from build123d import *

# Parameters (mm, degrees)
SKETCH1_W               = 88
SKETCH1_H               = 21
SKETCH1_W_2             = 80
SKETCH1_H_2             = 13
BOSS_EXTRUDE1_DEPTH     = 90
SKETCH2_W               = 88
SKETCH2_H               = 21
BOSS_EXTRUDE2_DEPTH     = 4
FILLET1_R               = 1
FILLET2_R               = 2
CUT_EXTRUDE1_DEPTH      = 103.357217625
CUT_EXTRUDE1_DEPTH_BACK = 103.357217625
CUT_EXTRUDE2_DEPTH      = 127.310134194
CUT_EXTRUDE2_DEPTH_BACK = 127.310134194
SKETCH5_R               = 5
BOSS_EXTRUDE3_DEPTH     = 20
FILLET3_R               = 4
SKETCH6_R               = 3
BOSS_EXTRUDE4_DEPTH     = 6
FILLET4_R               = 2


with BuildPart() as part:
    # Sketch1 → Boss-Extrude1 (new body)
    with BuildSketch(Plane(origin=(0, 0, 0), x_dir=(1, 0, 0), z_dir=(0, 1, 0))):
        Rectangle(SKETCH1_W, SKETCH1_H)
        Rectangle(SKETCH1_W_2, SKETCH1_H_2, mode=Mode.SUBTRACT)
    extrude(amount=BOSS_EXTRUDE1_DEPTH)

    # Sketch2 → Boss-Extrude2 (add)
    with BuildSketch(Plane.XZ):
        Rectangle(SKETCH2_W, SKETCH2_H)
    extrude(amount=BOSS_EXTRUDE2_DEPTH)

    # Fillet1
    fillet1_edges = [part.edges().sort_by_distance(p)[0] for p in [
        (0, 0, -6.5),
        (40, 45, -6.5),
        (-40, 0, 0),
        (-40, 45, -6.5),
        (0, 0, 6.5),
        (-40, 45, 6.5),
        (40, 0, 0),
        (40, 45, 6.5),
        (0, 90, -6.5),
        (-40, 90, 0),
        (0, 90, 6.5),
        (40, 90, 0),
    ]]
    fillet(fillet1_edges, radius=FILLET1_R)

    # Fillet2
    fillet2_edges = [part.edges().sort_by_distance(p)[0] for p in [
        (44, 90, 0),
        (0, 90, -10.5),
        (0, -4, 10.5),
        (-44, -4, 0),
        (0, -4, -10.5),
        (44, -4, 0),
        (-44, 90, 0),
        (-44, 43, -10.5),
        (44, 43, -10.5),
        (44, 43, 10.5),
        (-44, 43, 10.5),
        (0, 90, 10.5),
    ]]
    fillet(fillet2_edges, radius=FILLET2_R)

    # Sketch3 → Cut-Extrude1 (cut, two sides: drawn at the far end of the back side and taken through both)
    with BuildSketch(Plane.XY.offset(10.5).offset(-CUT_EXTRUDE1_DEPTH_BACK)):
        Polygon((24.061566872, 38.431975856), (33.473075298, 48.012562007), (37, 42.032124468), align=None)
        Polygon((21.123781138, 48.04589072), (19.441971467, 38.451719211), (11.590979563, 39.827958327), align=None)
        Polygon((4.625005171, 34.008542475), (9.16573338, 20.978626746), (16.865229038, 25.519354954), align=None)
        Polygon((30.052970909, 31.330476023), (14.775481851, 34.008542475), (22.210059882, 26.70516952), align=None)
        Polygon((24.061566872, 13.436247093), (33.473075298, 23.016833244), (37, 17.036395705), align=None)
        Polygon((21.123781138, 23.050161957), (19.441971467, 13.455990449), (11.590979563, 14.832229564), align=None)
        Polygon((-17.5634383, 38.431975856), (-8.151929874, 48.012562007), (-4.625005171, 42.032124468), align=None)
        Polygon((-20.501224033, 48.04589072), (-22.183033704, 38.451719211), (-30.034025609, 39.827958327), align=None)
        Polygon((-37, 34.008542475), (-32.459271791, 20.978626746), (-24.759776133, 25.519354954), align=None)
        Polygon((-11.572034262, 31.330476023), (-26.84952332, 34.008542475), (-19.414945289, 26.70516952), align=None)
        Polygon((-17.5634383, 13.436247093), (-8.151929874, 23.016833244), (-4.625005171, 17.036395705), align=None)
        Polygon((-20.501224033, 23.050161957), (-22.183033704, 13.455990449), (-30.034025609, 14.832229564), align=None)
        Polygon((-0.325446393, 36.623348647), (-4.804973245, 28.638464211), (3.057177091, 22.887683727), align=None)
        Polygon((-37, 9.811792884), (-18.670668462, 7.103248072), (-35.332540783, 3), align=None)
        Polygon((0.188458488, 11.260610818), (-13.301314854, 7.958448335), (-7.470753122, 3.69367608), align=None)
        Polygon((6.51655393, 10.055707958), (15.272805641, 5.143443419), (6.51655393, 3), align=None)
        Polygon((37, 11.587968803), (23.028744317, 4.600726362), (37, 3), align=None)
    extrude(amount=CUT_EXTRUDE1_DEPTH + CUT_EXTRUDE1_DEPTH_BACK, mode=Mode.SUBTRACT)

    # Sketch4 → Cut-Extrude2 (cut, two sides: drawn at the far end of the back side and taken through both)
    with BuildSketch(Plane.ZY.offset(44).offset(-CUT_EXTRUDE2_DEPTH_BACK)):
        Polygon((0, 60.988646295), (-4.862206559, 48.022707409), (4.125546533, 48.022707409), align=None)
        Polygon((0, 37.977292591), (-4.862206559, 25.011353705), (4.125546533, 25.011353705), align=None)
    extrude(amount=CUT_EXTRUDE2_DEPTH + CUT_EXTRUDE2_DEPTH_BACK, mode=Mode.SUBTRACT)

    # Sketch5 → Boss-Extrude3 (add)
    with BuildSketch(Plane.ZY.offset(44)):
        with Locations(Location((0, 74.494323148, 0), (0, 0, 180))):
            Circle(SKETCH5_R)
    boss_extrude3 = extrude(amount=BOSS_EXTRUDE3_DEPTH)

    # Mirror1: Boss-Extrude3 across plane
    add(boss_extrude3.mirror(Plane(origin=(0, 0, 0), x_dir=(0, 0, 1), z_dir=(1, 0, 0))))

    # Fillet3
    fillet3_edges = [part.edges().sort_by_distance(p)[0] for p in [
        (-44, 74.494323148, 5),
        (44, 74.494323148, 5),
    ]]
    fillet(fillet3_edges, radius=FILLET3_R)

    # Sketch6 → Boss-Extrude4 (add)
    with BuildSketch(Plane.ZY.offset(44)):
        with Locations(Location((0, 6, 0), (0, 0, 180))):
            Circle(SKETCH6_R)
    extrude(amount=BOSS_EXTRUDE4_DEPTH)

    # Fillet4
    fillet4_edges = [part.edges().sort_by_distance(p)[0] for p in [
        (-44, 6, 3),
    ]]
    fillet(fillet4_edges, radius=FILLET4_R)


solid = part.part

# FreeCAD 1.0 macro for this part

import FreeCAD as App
import Part
import Sketcher


def edges_at(feature, points):
    """Names of the edges that pass closest to the given points."""
    edges = feature.Shape.Edges
    near = lambda p: min(range(len(edges)), key=lambda i: edges[i].distToShape(Part.Vertex(*p))[0])
    return sorted({f"Edge{near(p) + 1}" for p in points})


def add_polygon(sketch, points):
    """Adds a closed chain of lines whose ends are joined by coincident constraints."""
    first, n = sketch.GeometryCount, len(points)
    for a, b in zip(points, points[1:] + points[:1]):
        sketch.addGeometry(Part.LineSegment(App.Vector(*a, 0), App.Vector(*b, 0)), False)
    for i in range(n):
        sketch.addConstraint(Sketcher.Constraint("Coincident", first + i, 2, first + (i + 1) % n, 1))

doc = App.newDocument("Part")
params = doc.addObject("Spreadsheet::Sheet", "Params")
for row, (alias, value) in enumerate([
    ("sketch1_width", "88 mm"),
    ("sketch1_width2", "80 mm"),
    ("sketch1_height", "21 mm"),
    ("sketch1_height2", "13 mm"),
    ("pad1_length", "90 mm"),
    ("sketch2_width", "88 mm"),
    ("sketch2_height", "21 mm"),
    ("pad2_length", "4 mm"),
    ("fillet_radius", "1 mm"),
    ("fillet2_radius", "2 mm"),
    ("sketch5_diameter", "10 mm"),
    ("pad3_length", "20 mm"),
    ("fillet3_radius", "4 mm"),
    ("sketch6_diameter", "6 mm"),
    ("pad4_length", "6 mm"),
    ("fillet4_radius", "2 mm"),
], start=1):
    params.set(f"A{row}", alias)
    params.set(f"B{row}", "=" + value)
    params.setAlias(f"B{row}", alias)

body = doc.addObject("PartDesign::Body", "Body")

# Sketch on XZ plane
sketch1 = doc.addObject("Sketcher::SketchObject", "Sketch")
body.addObject(sketch1)
sketch1.AttachmentSupport = (doc.XZ_Plane, [""])
sketch1.MapMode = "FlatFace"
add_polygon(sketch1, [(-44, -10), (-44, 10), (44, 10), (44, -10)])  # lines 0-3
add_polygon(sketch1, [(40, 6), (-40, 6), (-40, -6), (40, -6)])  # lines 4-7
sketch1.addConstraint(Sketcher.Constraint("Vertical", 0))
sketch1.addConstraint(Sketcher.Constraint("Horizontal", 1))
sketch1.addConstraint(Sketcher.Constraint("Vertical", 2))
sketch1.addConstraint(Sketcher.Constraint("Horizontal", 3))
sketch1.addConstraint(Sketcher.Constraint("Horizontal", 4))
sketch1.addConstraint(Sketcher.Constraint("Vertical", 5))
sketch1.addConstraint(Sketcher.Constraint("Horizontal", 6))
sketch1.addConstraint(Sketcher.Constraint("Vertical", 7))
sketch1.addConstraint(Sketcher.Constraint("Symmetric", 0, 2, 2, 2, -1, 1))
sketch1.addConstraint(Sketcher.Constraint("Symmetric", 4, 2, 6, 2, -1, 1))
sketch1.addConstraint(Sketcher.Constraint("DistanceX", 1, 1, 1, 2, 88.0))
sketch1.addConstraint(Sketcher.Constraint("DistanceX", 4, 2, 4, 1, 80.0))
sketch1.addConstraint(Sketcher.Constraint("DistanceY", 0, 1, 0, 2, 21.0))
sketch1.addConstraint(Sketcher.Constraint("DistanceY", 5, 2, 5, 1, 13.0))
sketch1.setExpression("Constraints[18]", "Params.sketch1_width")
sketch1.setExpression("Constraints[19]", "Params.sketch1_width2")
sketch1.setExpression("Constraints[20]", "Params.sketch1_height")
sketch1.setExpression("Constraints[21]", "Params.sketch1_height2")
pad1 = doc.addObject("PartDesign::Pad", "Pad")
body.addObject(pad1)
pad1.Profile = sketch1
pad1.setExpression("Length", "Params.pad1_length")
pad1.Reversed = True

# Sketch on XZ plane
sketch2 = doc.addObject("Sketcher::SketchObject", "Sketch001")
body.addObject(sketch2)
sketch2.AttachmentSupport = (doc.XZ_Plane, [""])
sketch2.MapMode = "FlatFace"
add_polygon(sketch2, [(-44, 10), (-44, -10), (44, -10), (44, 10)])  # lines 0-3
sketch2.addConstraint(Sketcher.Constraint("Vertical", 0))
sketch2.addConstraint(Sketcher.Constraint("Horizontal", 1))
sketch2.addConstraint(Sketcher.Constraint("Vertical", 2))
sketch2.addConstraint(Sketcher.Constraint("Horizontal", 3))
sketch2.addConstraint(Sketcher.Constraint("Symmetric", 0, 2, 2, 2, -1, 1))
sketch2.addConstraint(Sketcher.Constraint("DistanceX", 1, 1, 1, 2, 88.0))
sketch2.addConstraint(Sketcher.Constraint("DistanceY", 0, 2, 0, 1, 21.0))
sketch2.setExpression("Constraints[9]", "Params.sketch2_width")
sketch2.setExpression("Constraints[10]", "Params.sketch2_height")
pad2 = doc.addObject("PartDesign::Pad", "Pad001")
body.addObject(pad2)
pad2.Profile = sketch2
pad2.setExpression("Length", "Params.pad2_length")
doc.recompute()

fillet = doc.addObject("PartDesign::Fillet", "Fillet")
body.addObject(fillet)
fillet.Base = (pad2, edges_at(pad2, [
    (0, 0, -6.5),
    (40, 45, -6.5),
    (-40, 0, 0),
    (-40, 45, -6.5),
    (0, 0, 6.5),
    (-40, 45, 6.5),
    (40, 0, 0),
    (40, 45, 6.5),
    (0, 90, -6.5),
    (-40, 90, 0),
    (0, 90, 6.5),
    (40, 90, 0),
]))
fillet.setExpression("Radius", "Params.fillet_radius")
doc.recompute()

fillet2 = doc.addObject("PartDesign::Fillet", "Fillet001")
body.addObject(fillet2)
fillet2.Base = (fillet, edges_at(fillet, [
    (44, 90, 0),
    (0, 90, -10.5),
    (0, -4, 10.5),
    (-44, -4, 0),
    (0, -4, -10.5),
    (44, -4, 0),
    (-44, 90, 0),
    (-44, 43, -10.5),
    (44, 43, -10.5),
    (44, 43, 10.5),
    (-44, 43, 10.5),
    (0, 90, 10.5),
]))
fillet2.setExpression("Radius", "Params.fillet2_radius")

# Sketch on XY plane
sketch3 = doc.addObject("Sketcher::SketchObject", "Sketch002")
body.addObject(sketch3)
sketch3.AttachmentSupport = (doc.XY_Plane, [""])
sketch3.MapMode = "FlatFace"
sketch3.AttachmentOffset = App.Placement(App.Vector(0, 0, 10.5), App.Rotation())
add_polygon(sketch3, [(33, 48), (24, 38), (37, 42)])  # lines 0-2
add_polygon(sketch3, [(19, 38), (21, 48), (12, 40)])  # lines 3-5
add_polygon(sketch3, [(5, 34), (9, 21), (17, 26)])  # lines 6-8
add_polygon(sketch3, [(30, 31), (15, 34), (22, 27)])  # lines 9-11
add_polygon(sketch3, [(33, 23), (24, 13), (37, 17)])  # lines 12-14
add_polygon(sketch3, [(19, 13), (21, 23), (12, 15)])  # lines 15-17
add_polygon(sketch3, [(-8, 48), (-18, 38), (-5, 42)])  # lines 18-20
add_polygon(sketch3, [(-22, 38), (-21, 48), (-30, 40)])  # lines 21-23
add_polygon(sketch3, [(-37, 34), (-32, 21), (-25, 26)])  # lines 24-26
add_polygon(sketch3, [(-12, 31), (-27, 34), (-19, 27)])  # lines 27-29
add_polygon(sketch3, [(-8, 23), (-18, 13), (-5, 17)])  # lines 30-32
add_polygon(sketch3, [(-22, 13), (-21, 23), (-30, 15)])  # lines 33-35
add_polygon(sketch3, [(0, 37), (-5, 29), (3, 23)])  # lines 36-38
add_polygon(sketch3, [(-19, 7), (-37, 10), (-35, 3)])  # lines 39-41
add_polygon(sketch3, [(0, 11), (-13, 8), (-7, 4)])  # lines 42-44
add_polygon(sketch3, [(15, 5), (7, 10), (7, 3)])  # lines 45-47
add_polygon(sketch3, [(37, 12), (23, 5), (37, 3)])  # lines 48-50
sketch3.addConstraint(Sketcher.Constraint("Vertical", 46))
sketch3.addConstraint(Sketcher.Constraint("Vertical", 50))
sketch3.addConstraint(Sketcher.Constraint("Perpendicular", 3, 5))
sketch3.addConstraint(Sketcher.Constraint("Perpendicular", 2, 7))
sketch3.addConstraint(Sketcher.Constraint("Parallel", 5, 9))
sketch3.addConstraint(Sketcher.Constraint("Perpendicular", 0, 10))
sketch3.addConstraint(Sketcher.Constraint("Parallel", 7, 11))
sketch3.addConstraint(Sketcher.Constraint("Perpendicular", 10, 12))
sketch3.addConstraint(Sketcher.Constraint("Parallel", 1, 13))
sketch3.addConstraint(Sketcher.Constraint("Perpendicular", 11, 14))
sketch3.addConstraint(Sketcher.Constraint("Perpendicular", 9, 15))
sketch3.addConstraint(Sketcher.Constraint("Parallel", 4, 16))
sketch3.addConstraint(Sketcher.Constraint("Perpendicular", 15, 17))
sketch3.addConstraint(Sketcher.Constraint("Parallel", 12, 18))
sketch3.addConstraint(Sketcher.Constraint("Parallel", 13, 19))
sketch3.addConstraint(Sketcher.Constraint("Parallel", 14, 20))
sketch3.addConstraint(Sketcher.Constraint("Perpendicular", 17, 21))
sketch3.addConstraint(Sketcher.Constraint("Parallel", 16, 22))
sketch3.addConstraint(Sketcher.Constraint("Perpendicular", 21, 23))
sketch3.addConstraint(Sketcher.Constraint("Parallel", 6, 24))
sketch3.addConstraint(Sketcher.Constraint("Perpendicular", 20, 25))
sketch3.addConstraint(Sketcher.Constraint("Parallel", 8, 26))
sketch3.addConstraint(Sketcher.Constraint("Parallel", 23, 27))
sketch3.addConstraint(Sketcher.Constraint("Perpendicular", 18, 28))
sketch3.addConstraint(Sketcher.Constraint("Parallel", 25, 29))
sketch3.addConstraint(Sketcher.Constraint("Perpendicular", 28, 30))
sketch3.addConstraint(Sketcher.Constraint("Parallel", 19, 31))
sketch3.addConstraint(Sketcher.Constraint("Perpendicular", 29, 32))
sketch3.addConstraint(Sketcher.Constraint("Perpendicular", 27, 33))
sketch3.addConstraint(Sketcher.Constraint("Parallel", 22, 34))
sketch3.addConstraint(Sketcher.Constraint("Perpendicular", 33, 35))
sketch3.addConstraint(Sketcher.Constraint("Perpendicular", 38, 41))
sketch3.addConstraint(Sketcher.Constraint("Perpendicular", 40, 42))
sketch3.addConstraint(Sketcher.Constraint("Parallel", 37, 43))
sketch3.addConstraint(Sketcher.Constraint("Perpendicular", 36, 45))
sketch3.addConstraint(Sketcher.Constraint("Parallel", 42, 47))
sketch3.addConstraint(Sketcher.Constraint("Horizontal", 8, 2, 9, 2))
sketch3.addConstraint(Sketcher.Constraint("Horizontal", 0, 2, 18, 2))
sketch3.addConstraint(Sketcher.Constraint("Horizontal", 1, 2, 19, 2))
sketch3.addConstraint(Sketcher.Constraint("Horizontal", 3, 2, 21, 2))
sketch3.addConstraint(Sketcher.Constraint("Horizontal", 4, 2, 22, 2))
sketch3.addConstraint(Sketcher.Constraint("Horizontal", 6, 2, 24, 2))
sketch3.addConstraint(Sketcher.Constraint("Horizontal", 7, 2, 25, 2))
sketch3.addConstraint(Sketcher.Constraint("Horizontal", 26, 2, 27, 2))
sketch3.addConstraint(Sketcher.Constraint("Horizontal", 10, 2, 28, 2))
sketch3.addConstraint(Sketcher.Constraint("Horizontal", 12, 2, 30, 2))
sketch3.addConstraint(Sketcher.Constraint("Horizontal", 13, 2, 31, 2))
sketch3.addConstraint(Sketcher.Constraint("Horizontal", 15, 2, 33, 2))
sketch3.addConstraint(Sketcher.Constraint("Horizontal", 16, 2, 34, 2))
sketch3.addConstraint(Sketcher.Constraint("Horizontal", 40, 2, 46, 2))
sketch3.addConstraint(Sketcher.Constraint("Horizontal", 46, 2, 49, 2))
sketch3.addConstraint(Sketcher.Constraint("Vertical", 0, 2, 12, 2))
sketch3.addConstraint(Sketcher.Constraint("Vertical", 1, 2, 13, 2))
sketch3.addConstraint(Sketcher.Constraint("Vertical", 3, 2, 15, 2))
sketch3.addConstraint(Sketcher.Constraint("Vertical", 4, 2, 16, 2))
sketch3.addConstraint(Sketcher.Constraint("Vertical", 18, 2, 30, 2))
sketch3.addConstraint(Sketcher.Constraint("Vertical", 21, 2, 33, 2))
sketch3.addConstraint(Sketcher.Constraint("Vertical", 26, 2, 39, 2))
sketch3.addConstraint(Sketcher.Constraint("Vertical", 13, 2, 49, 2))
sketch3.addConstraint(Sketcher.Constraint("Equal", 0, 1))
sketch3.addConstraint(Sketcher.Constraint("DistanceX", -1, 1, 1, 2, 37.0))
sketch3.addConstraint(Sketcher.Constraint("DistanceX", 26, 2, -1, 1, 37.0))
sketch3.addConstraint(Sketcher.Constraint("DistanceY", -1, 1, 40, 2, 3.0))
sketch3.addConstraint(Sketcher.Constraint("DistanceX", 5, 2, 11, 2, 10.610999))
sketch3.addConstraint(Sketcher.Constraint("DistanceX", 23, 2, 29, 2, 10.610999))
sketch3.addConstraint(Sketcher.Constraint("DistanceY", 41, 2, 30, 2, 6.332999))
sketch3.addConstraint(Sketcher.Constraint("DistanceY", 50, 1, 50, 2, 8.587969))
sketch3.addConstraint(Sketcher.Constraint("DistanceX", 4, 2, 3, 2, 9.532802))
sketch3.addConstraint(Sketcher.Constraint("DistanceY", 11, 2, 0, 2, 7.1015))
sketch3.addConstraint(Sketcher.Constraint("DistanceY", 41, 2, 42, 2, 0.8552))
sketch3.addConstraint(Sketcher.Constraint("Distance", 0, 13.429971))
sketch3.addConstraint(Sketcher.Constraint("Distance", 2, 6.94297))
sketch3.addConstraint(Sketcher.Constraint("Distance", 6, 13.798439))
sketch3.addConstraint(Sketcher.Constraint("Distance", 8, 14.895952))
sketch3.addConstraint(Sketcher.Constraint("Distance", 9, 15.510439))
sketch3.addConstraint(Sketcher.Constraint("Distance", 10, 10.421718))
sketch3.addConstraint(Sketcher.Constraint("Distance", 41, 17.15968))
sketch3.addConstraint(Sketcher.Constraint("Distance", 42, 13.888062))
sketch3.addConstraint(Sketcher.Constraint("Distance", 43, 7.223831))
sketch3.addConstraint(Sketcher.Constraint("Distance", 44, 10.766709))
sketch3.addConstraint(Sketcher.Constraint("Distance", 47, 9.014782))
sketch3.addConstraint(Sketcher.Constraint("Distance", 48, 15.621061))
sketch3.addConstraint(Sketcher.Constraint("DistanceY", 46, 2, 46, 1, 7.055708))
sketch3.addConstraint(Sketcher.Constraint("DistanceX", -1, 1, 3, 2, 21.123781))
sketch3.addConstraint(Sketcher.Constraint("DistanceY", -1, 1, 3, 2, 48.045891))
sketch3.addConstraint(Sketcher.Constraint("DistanceY", -1, 1, 4, 2, 39.827958))
sketch3.addConstraint(Sketcher.Constraint("DistanceX", -1, 1, 5, 2, 19.441971))
sketch3.addConstraint(Sketcher.Constraint("DistanceX", -1, 1, 7, 2, 16.865229))
sketch3.addConstraint(Sketcher.Constraint("DistanceY", -1, 1, 10, 2, 26.70517))
sketch3.addConstraint(Sketcher.Constraint("DistanceY", -1, 1, 15, 2, 23.050162))
sketch3.addConstraint(Sketcher.Constraint("DistanceX", 18, 2, -1, 1, 17.563438))
sketch3.addConstraint(Sketcher.Constraint("DistanceX", 24, 2, -1, 1, 32.459272))
sketch3.addConstraint(Sketcher.Constraint("DistanceY", -1, 1, 38, 2, 36.623349))
sketch3.addConstraint(Sketcher.Constraint("DistanceX", 40, 2, -1, 1, 35.332541))
sketch3.addConstraint(Sketcher.Constraint("DistanceX", 41, 2, -1, 1, 18.670668))
sketch3.addConstraint(Sketcher.Constraint("DistanceX", -1, 1, 44, 2, 0.188458))
sketch3.addConstraint(Sketcher.Constraint("DistanceY", -1, 1, 44, 2, 11.260611))
sketch3.addConstraint(Sketcher.Constraint("DistanceX", 21, 2, 19, 2, 15.876219))
sketch3.addConstraint(Sketcher.Constraint("DistanceY", 32, 2, 36, 2, 5.621631))
sketch3.addConstraint(Sketcher.Constraint("DistanceX", 29, 2, 36, 2, 6.767061))
sketch3.addConstraint(Sketcher.Constraint("DistanceX", 45, 2, 6, 2, 2.649179))
sketch3.addConstraint(Sketcher.Constraint("DistanceX", 47, 2, 48, 2, 7.755939))
pocket1 = doc.addObject("PartDesign::Pocket", "Pocket")
body.addObject(pocket1)
pocket1.Profile = sketch3
pocket1.Type = "ThroughAll"
pocket1.Midplane = True

# Sketch on YZ plane
sketch4 = doc.addObject("Sketcher::SketchObject", "Sketch003")
body.addObject(sketch4)
sketch4.AttachmentSupport = (doc.YZ_Plane, [""])
sketch4.MapMode = "FlatFace"
sketch4.AttachmentOffset = App.Placement(App.Vector(0, 0, -44), App.Rotation())
add_polygon(sketch4, [(61, 0), (48, -5), (48, 4)])  # lines 0-2
add_polygon(sketch4, [(38, 0), (25, -5), (25, 4)])  # lines 3-5
sketch4.addConstraint(Sketcher.Constraint("Vertical", 1))
sketch4.addConstraint(Sketcher.Constraint("Vertical", 4))
sketch4.addConstraint(Sketcher.Constraint("PointOnObject", 2, 2, -1))
sketch4.addConstraint(Sketcher.Constraint("PointOnObject", 5, 2, -1))
sketch4.addConstraint(Sketcher.Constraint("Parallel", 0, 3))
sketch4.addConstraint(Sketcher.Constraint("Parallel", 2, 5))
sketch4.addConstraint(Sketcher.Constraint("Horizontal", 0, 2, 3, 2))
sketch4.addConstraint(Sketcher.Constraint("Distance", 0, 13.847622))
sketch4.addConstraint(Sketcher.Constraint("Distance", 2, 13.606458))
sketch4.addConstraint(Sketcher.Constraint("DistanceY", 1, 1, 1, 2, 8.987753))
sketch4.addConstraint(Sketcher.Constraint("DistanceX", -1, 1, 0, 2, 48.022707))
sketch4.addConstraint(Sketcher.Constraint("DistanceX", -1, 1, 3, 2, 25.011354))
pocket2 = doc.addObject("PartDesign::Pocket", "Pocket001")
body.addObject(pocket2)
pocket2.Profile = sketch4
pocket2.Type = "ThroughAll"
pocket2.Midplane = True

# Sketch on YZ plane
sketch5 = doc.addObject("Sketcher::SketchObject", "Sketch004")
body.addObject(sketch5)
sketch5.AttachmentSupport = (doc.YZ_Plane, [""])
sketch5.MapMode = "FlatFace"
sketch5.AttachmentOffset = App.Placement(App.Vector(0, 0, -44), App.Rotation())
sketch5.addGeometry(Part.Circle(App.Vector(74, 0, 0), App.Vector(0, 0, 1), 5), False)
sketch5.addConstraint(Sketcher.Constraint("PointOnObject", 0, 3, -1))
sketch5.addConstraint(Sketcher.Constraint("Diameter", 0, 10.0))
sketch5.addConstraint(Sketcher.Constraint("DistanceX", -1, 1, 0, 3, 74.494323))
sketch5.setExpression("Constraints[1]", "Params.sketch5_diameter")
pad3 = doc.addObject("PartDesign::Pad", "Pad002")
body.addObject(pad3)
pad3.Profile = sketch5
pad3.setExpression("Length", "Params.pad3_length")
pad3.Reversed = True
doc.recompute()

mirrored = doc.addObject("PartDesign::Mirrored", "Mirrored")
body.addObject(mirrored)
mirrored.Originals = [pad3]
mirrored.MirrorPlane = (doc.YZ_Plane, [""])
body.Tip = mirrored
doc.recompute()

fillet3 = doc.addObject("PartDesign::Fillet", "Fillet002")
body.addObject(fillet3)
fillet3.Base = (mirrored, edges_at(mirrored, [(-44, 74.494, 5), (44, 74.494, 5)]))
fillet3.setExpression("Radius", "Params.fillet3_radius")

# Sketch on YZ plane
sketch6 = doc.addObject("Sketcher::SketchObject", "Sketch005")
body.addObject(sketch6)
sketch6.AttachmentSupport = (doc.YZ_Plane, [""])
sketch6.MapMode = "FlatFace"
sketch6.AttachmentOffset = App.Placement(App.Vector(0, 0, -44), App.Rotation())
sketch6.addGeometry(Part.Circle(App.Vector(6, 0, 0), App.Vector(0, 0, 1), 3), False)
sketch6.addConstraint(Sketcher.Constraint("PointOnObject", 0, 3, -1))
sketch6.addConstraint(Sketcher.Constraint("Diameter", 0, 6.0))
sketch6.addConstraint(Sketcher.Constraint("DistanceX", -1, 1, 0, 3, 6.0))
sketch6.setExpression("Constraints[1]", "Params.sketch6_diameter")
pad4 = doc.addObject("PartDesign::Pad", "Pad003")
body.addObject(pad4)
pad4.Profile = sketch6
pad4.setExpression("Length", "Params.pad4_length")
pad4.Reversed = True
doc.recompute()

fillet4 = doc.addObject("PartDesign::Fillet", "Fillet003")
body.addObject(fillet4)
fillet4.Base = (pad4, edges_at(pad4, [(-44, 6, 3)]))
fillet4.setExpression("Radius", "Params.fillet4_radius")

doc.recompute()
